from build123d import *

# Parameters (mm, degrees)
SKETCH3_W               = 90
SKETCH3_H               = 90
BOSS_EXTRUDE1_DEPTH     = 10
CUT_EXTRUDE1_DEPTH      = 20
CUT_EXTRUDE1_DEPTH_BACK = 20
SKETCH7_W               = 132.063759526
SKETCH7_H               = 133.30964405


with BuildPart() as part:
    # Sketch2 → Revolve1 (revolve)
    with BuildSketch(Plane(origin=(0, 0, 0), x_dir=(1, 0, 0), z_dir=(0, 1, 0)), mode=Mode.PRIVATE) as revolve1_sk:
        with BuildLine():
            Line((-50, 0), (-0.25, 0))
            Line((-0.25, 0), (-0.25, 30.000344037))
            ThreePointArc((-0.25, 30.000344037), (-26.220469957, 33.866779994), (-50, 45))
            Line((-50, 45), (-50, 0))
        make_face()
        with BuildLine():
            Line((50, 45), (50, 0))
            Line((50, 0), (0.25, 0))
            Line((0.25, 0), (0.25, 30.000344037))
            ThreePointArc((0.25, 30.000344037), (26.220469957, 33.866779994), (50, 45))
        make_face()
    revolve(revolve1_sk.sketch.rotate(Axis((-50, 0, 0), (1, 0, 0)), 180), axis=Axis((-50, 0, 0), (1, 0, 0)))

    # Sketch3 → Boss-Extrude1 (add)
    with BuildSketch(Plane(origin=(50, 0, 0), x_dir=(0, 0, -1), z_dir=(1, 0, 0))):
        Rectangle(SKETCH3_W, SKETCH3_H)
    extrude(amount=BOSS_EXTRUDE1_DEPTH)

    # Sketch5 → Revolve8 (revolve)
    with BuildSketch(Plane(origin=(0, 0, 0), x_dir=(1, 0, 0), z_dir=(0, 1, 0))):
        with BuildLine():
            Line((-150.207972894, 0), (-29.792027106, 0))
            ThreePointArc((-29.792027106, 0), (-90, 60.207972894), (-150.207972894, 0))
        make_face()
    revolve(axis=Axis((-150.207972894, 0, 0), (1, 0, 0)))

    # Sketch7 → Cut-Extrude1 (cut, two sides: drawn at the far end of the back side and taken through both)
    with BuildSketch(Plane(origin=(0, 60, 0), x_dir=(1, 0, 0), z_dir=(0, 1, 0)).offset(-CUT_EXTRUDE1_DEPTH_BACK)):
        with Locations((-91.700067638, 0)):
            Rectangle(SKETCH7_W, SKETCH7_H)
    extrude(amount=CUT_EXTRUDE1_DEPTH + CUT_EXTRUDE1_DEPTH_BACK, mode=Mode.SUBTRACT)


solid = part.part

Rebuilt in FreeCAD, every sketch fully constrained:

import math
import FreeCAD as App
import Part
import Sketcher
from FreeCAD import Vector
Q = App.Units.Quantity

doc = App.newDocument("Part")
params = doc.addObject("Spreadsheet::Sheet", "Params")
for row, (alias, value) in enumerate([
    ("sketch1_height", "45 mm"),
    ("sketch1_width", "49.75 mm"),
    ("revolution_angle", "360 deg"),
    ("sketch2_width", "90 mm"),
    ("pad1_length", "10 mm"),
    ("revolution2_angle", "360 deg"),
    ("pocket1_length", "20 mm"),
    ("pocket1_length2", "20 mm"),
], start=1):
    params.set(f"A{row}", alias)
    params.set(f"B{row}", "=" + value)
    params.setAlias(f"B{row}", alias)

body = doc.addObject("PartDesign::Body", "Body")
body.AllowCompound = True

sketch1 = body.newObject("Sketcher::SketchObject", "Sketch")
sketch1.AttachmentSupport = (doc.getObject("XZ_Plane"), [""])
sketch1.MapMode = "FlatFace"
sketch1.addGeometry([
    Part.LineSegment(Vector(-50, 0, 0), Vector(-0.25, 0, 0)),
    Part.LineSegment(Vector(-0.25, 0, 0), Vector(-0.25, -30.000344, 0)),
    Part.ArcOfCircle(Part.Circle(Vector(0, -120.833333, 0), Vector(0, 0, 1), 90.833333), math.radians(90.157695), math.radians(123.398488)),
    Part.LineSegment(Vector(-50, -45, 0), Vector(-50, 0, 0)),
    Part.LineSegment(Vector(50, 0, 0), Vector(50, -45, 0)),
    Part.ArcOfCircle(Part.Circle(Vector(0, -120.833333, 0), Vector(0, 0, 1), 90.833333), math.radians(56.601512), math.radians(89.842305)),
    Part.LineSegment(Vector(0.25, -30.000344, 0), Vector(0.25, 0, 0)),
    Part.LineSegment(Vector(0.25, 0, 0), Vector(50, 0, 0)),
], False)
sketch1.addConstraint([
    Sketcher.Constraint("Coincident", 0, 2, 1, 1),
    Sketcher.Constraint("Coincident", 1, 2, 2, 1),
    Sketcher.Constraint("Coincident", 2, 2, 3, 1),
    Sketcher.Constraint("Coincident", 3, 2, 0, 1),
    Sketcher.Constraint("Coincident", 4, 2, 5, 1),
    Sketcher.Constraint("Coincident", 5, 2, 6, 1),
    Sketcher.Constraint("Coincident", 6, 2, 7, 1),
    Sketcher.Constraint("Coincident", 7, 2, 4, 1),
    Sketcher.Constraint("Horizontal", 0),
    Sketcher.Constraint("Vertical", 1),
    Sketcher.Constraint("Vertical", 3),
    Sketcher.Constraint("Vertical", 4),
    Sketcher.Constraint("Vertical", 6),
    Sketcher.Constraint("Horizontal", 7),
    Sketcher.Constraint("Coincident", 5, 3, 2, 3),
    Sketcher.Constraint("Equal", 2, 5),
    Sketcher.Constraint("Symmetric", 0, 2, 6, 2, -1, 1),
    Sketcher.Constraint("Symmetric", 2, 2, 4, 2, -2),
    Sketcher.Constraint("PointOnObject", 0, 2, -1),
    Sketcher.Constraint("DistanceY", 3, 1, 3, 2, Q("45 mm")),
    Sketcher.Constraint("DistanceX", 2, 2, -1, 1, Q("50 mm")),
    Sketcher.Constraint("DistanceX", 0, 1, 0, 2, Q("49.75 mm")),
    Sketcher.Constraint("Radius", 2, Q("90.833333 mm")),
])
sketch1.setExpression("Constraints[19]", "Params.sketch1_height")
sketch1.setExpression("Constraints[21]", "Params.sketch1_width")
revolution = body.newObject("PartDesign::Revolution", "Revolution")
revolution.Profile = sketch1
revolution.ReferenceAxis = (sketch1, ["H_Axis"])
revolution.setExpression("Angle", "Params.revolution_angle")

sketch2 = body.newObject("Sketcher::SketchObject", "Sketch001")
sketch2.AttachmentSupport = (doc.getObject("YZ_Plane"), [""])
sketch2.MapMode = "FlatFace"
sketch2.AttachmentOffset = App.Placement(Vector(0, 0, 50), App.Rotation())
sketch2.addGeometry([
    Part.LineSegment(Vector(45, 45, 0), Vector(-45, 45, 0)),
    Part.LineSegment(Vector(-45, 45, 0), Vector(-45, -45, 0)),
    Part.LineSegment(Vector(-45, -45, 0), Vector(45, -45, 0)),
    Part.LineSegment(Vector(45, -45, 0), Vector(45, 45, 0)),
], False)
sketch2.addConstraint([
    Sketcher.Constraint("Coincident", 0, 2, 1, 1),
    Sketcher.Constraint("Coincident", 1, 2, 2, 1),
    Sketcher.Constraint("Coincident", 2, 2, 3, 1),
    Sketcher.Constraint("Coincident", 3, 2, 0, 1),
    Sketcher.Constraint("Horizontal", 0),
    Sketcher.Constraint("Vertical", 1),
    Sketcher.Constraint("Horizontal", 2),
    Sketcher.Constraint("Vertical", 3),
    Sketcher.Constraint("Symmetric", 0, 2, 2, 2, -1, 1),
    Sketcher.Constraint("Equal", 2, 1),
    Sketcher.Constraint("DistanceX", 0, 2, 0, 1, Q("90 mm")),
])
sketch2.setExpression("Constraints[10]", "Params.sketch2_width")
pad1 = body.newObject("PartDesign::Pad", "Pad")
pad1.Profile = sketch2
pad1.setExpression("Length", "Params.pad1_length")

sketch3 = body.newObject("Sketcher::SketchObject", "Sketch002")
sketch3.AttachmentSupport = (doc.getObject("XZ_Plane"), [""])
sketch3.MapMode = "FlatFace"
sketch3.addGeometry([
    Part.LineSegment(Vector(-150, 0, 0), Vector(-30, 0, 0)),
    Part.ArcOfCircle(Part.Circle(Vector(-90, 0, 0), Vector(0, 0, 1), 60), math.radians(180), math.radians(360)),
], False)
sketch3.addConstraint([
    Sketcher.Constraint("Coincident", 0, 1, 1, 1),
    Sketcher.Constraint("Coincident", 1, 2, 0, 2),
    Sketcher.Constraint("Horizontal", 0),
    Sketcher.Constraint("PointOnObject", 1, 3, -1),
    Sketcher.Constraint("PointOnObject", 0, 1, -1),
    Sketcher.Constraint("DistanceX", 1, 3, -1, 1, Q("90 mm")),
    Sketcher.Constraint("Radius", 1, Q("60.207973 mm")),
])
revolution2 = body.newObject("PartDesign::Revolution", "Revolution001")
revolution2.Profile = sketch3
revolution2.ReferenceAxis = (sketch3, ["H_Axis"])
revolution2.setExpression("Angle", "Params.revolution2_angle")

sketch4 = body.newObject("Sketcher::SketchObject", "Sketch003")
sketch4.AttachmentSupport = (doc.getObject("XZ_Plane"), [""])
sketch4.MapMode = "FlatFace"
sketch4.AttachmentOffset = App.Placement(Vector(0, 0, -60), App.Rotation())
sketch4.addGeometry([
    Part.LineSegment(Vector(-158, -67, 0), Vector(-158, 67, 0)),
    Part.LineSegment(Vector(-158, 67, 0), Vector(-26, 67, 0)),
    Part.LineSegment(Vector(-26, 67, 0), Vector(-26, -67, 0)),
    Part.LineSegment(Vector(-26, -67, 0), Vector(-158, -67, 0)),
], False)
sketch4.addConstraint([
    Sketcher.Constraint("Coincident", 0, 2, 1, 1),
    Sketcher.Constraint("Coincident", 1, 2, 2, 1),
    Sketcher.Constraint("Coincident", 2, 2, 3, 1),
    Sketcher.Constraint("Coincident", 3, 2, 0, 1),
    Sketcher.Constraint("Vertical", 0),
    Sketcher.Constraint("Horizontal", 1),
    Sketcher.Constraint("Vertical", 2),
    Sketcher.Constraint("Horizontal", 3),
    Sketcher.Constraint("DistanceX", 1, 1, 1, 2, Q("132.06376 mm")),
    Sketcher.Constraint("DistanceY", 0, 1, 0, 2, Q("133.309644 mm")),
    Sketcher.Constraint("DistanceX", 0, 2, -1, 1, Q("157.731947 mm")),
    Sketcher.Constraint("DistanceY", -1, 1, 0, 2, Q("66.654822 mm")),
])
pocket1 = body.newObject("PartDesign::Pocket", "Pocket")
pocket1.Profile = sketch4
pocket1.Type = "TwoLengths"
pocket1.setExpression("Length", "Params.pocket1_length")
pocket1.setExpression("Length2", "Params.pocket1_length2")

doc.recompute()
